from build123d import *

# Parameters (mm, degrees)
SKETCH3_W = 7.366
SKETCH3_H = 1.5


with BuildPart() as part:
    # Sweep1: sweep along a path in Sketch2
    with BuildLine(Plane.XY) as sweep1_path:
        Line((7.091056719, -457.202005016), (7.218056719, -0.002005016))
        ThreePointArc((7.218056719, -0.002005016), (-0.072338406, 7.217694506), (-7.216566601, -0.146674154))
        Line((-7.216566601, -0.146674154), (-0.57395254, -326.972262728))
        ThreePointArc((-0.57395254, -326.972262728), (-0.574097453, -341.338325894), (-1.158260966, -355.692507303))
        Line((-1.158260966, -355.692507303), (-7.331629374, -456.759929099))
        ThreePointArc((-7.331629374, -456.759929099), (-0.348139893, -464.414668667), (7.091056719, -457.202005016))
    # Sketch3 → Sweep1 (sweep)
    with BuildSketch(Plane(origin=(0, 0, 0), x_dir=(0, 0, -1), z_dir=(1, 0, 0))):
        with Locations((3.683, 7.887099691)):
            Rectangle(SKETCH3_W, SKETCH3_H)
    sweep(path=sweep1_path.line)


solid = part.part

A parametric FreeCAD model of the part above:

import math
import FreeCAD as App
import Part
import Sketcher
from FreeCAD import Vector
Q = App.Units.Quantity


def add_polygon(sketch, points):
    """Adds a closed chain of lines whose ends are joined by coincident constraints."""
    first, n = sketch.GeometryCount, len(points)
    for a, b in zip(points, points[1:] + points[:1]):
        sketch.addGeometry(Part.LineSegment(App.Vector(*a, 0), App.Vector(*b, 0)), False)
    for i in range(n):
        sketch.addConstraint(Sketcher.Constraint("Coincident", first + i, 2, first + (i + 1) % n, 1))

doc = App.newDocument("Part")
body = doc.addObject("PartDesign::Body", "Body")

# Sketch on YZ plane
sketch1 = body.newObject("Sketcher::SketchObject", "Sketch")
sketch1.AttachmentSupport = (doc.getObject("YZ_Plane"), [""])
sketch1.MapMode = "FlatFace"
add_polygon(sketch1, [(8.6, 0), (7.1, 0), (7.1, -7.4), (8.6, -7.4)])  # lines 0-3
sketch1.addConstraint(Sketcher.Constraint("Horizontal", 0))
sketch1.addConstraint(Sketcher.Constraint("Vertical", 1))
sketch1.addConstraint(Sketcher.Constraint("Horizontal", 2))
sketch1.addConstraint(Sketcher.Constraint("Vertical", 3))
sketch1.addConstraint(Sketcher.Constraint("PointOnObject", 0, 2, -1))
sketch1.addConstraint(Sketcher.Constraint("DistanceX", 0, 2, 0, 1, Q("1.5 mm")))
sketch1.addConstraint(Sketcher.Constraint("DistanceY", 1, 2, 1, 1, Q("7.366 mm")))
sketch1.addConstraint(Sketcher.Constraint("DistanceX", -1, 1, 0, 2, Q("7.1371 mm")))

# Sketch on XY plane
sketch2 = body.newObject("Sketcher::SketchObject", "Sketch001")
sketch2.AttachmentSupport = (doc.getObject("XY_Plane"), [""])
sketch2.MapMode = "FlatFace"
sketch2.addGeometry(Part.LineSegment(Vector(7, -457, 0), Vector(7, 0, 0)), False)
sketch2.addGeometry(Part.ArcOfCircle(Part.Circle(Vector(0, 0, 0), Vector(0, 0, 1), 7), math.radians(0), math.radians(181)), False)
sketch2.addGeometry(Part.LineSegment(Vector(-7, 0, 0), Vector(-1, -327, 0)), False)
sketch2.addGeometry(Part.ArcOfCircle(Part.Circle(Vector(-354, -334, 0), Vector(0, 0, 1), 353), math.radians(-3.5), math.radians(1.16)), False)
sketch2.addGeometry(Part.LineSegment(Vector(-1, -356, 0), Vector(-7, -457, 0)), False)
sketch2.addGeometry(Part.ArcOfCircle(Part.Circle(Vector(0, -457, 0), Vector(0, 0, 1), 7), math.radians(177), math.radians(360)), False)
sketch2.addConstraint(Sketcher.Constraint("Tangent", 0, 2, 1, 1))
sketch2.addConstraint(Sketcher.Constraint("Tangent", 1, 2, 2, 1))
sketch2.addConstraint(Sketcher.Constraint("Tangent", 2, 2, 3, 2))
sketch2.addConstraint(Sketcher.Constraint("Tangent", 3, 1, 4, 1))
sketch2.addConstraint(Sketcher.Constraint("Tangent", 4, 2, 5, 1))
sketch2.addConstraint(Sketcher.Constraint("Tangent", 5, 2, 0, 1))
sketch2.addConstraint(Sketcher.Constraint("Coincident", 1, 3, -1, 1))
sketch2.addConstraint(Sketcher.Constraint("Equal", 1, 5))
sketch2.addConstraint(Sketcher.Constraint("DistanceY", 5, 3, -1, 1, Q("457.2 mm")))
sketch2.addConstraint(Sketcher.Constraint("Radius", 3, Q("353.3125 mm")))
sketch2.addConstraint(Sketcher.Constraint("DistanceX", 5, 3, -1, 1, Q("0.127 mm")))
sketch2.addConstraint(Sketcher.Constraint("Radius", 1, Q("7.218057 mm")))
sketch2.addConstraint(Sketcher.Constraint("DistanceX", 3, 3, -1, 1, Q("353.8135 mm")))
sketch2.addConstraint(Sketcher.Constraint("DistanceY", 3, 3, -1, 1, Q("334.151731 mm")))
doc.recompute()

additivepipe = body.newObject("PartDesign::AdditivePipe", "AdditivePipe")
additivepipe.Profile = sketch1
additivepipe.Spine = (sketch2, ["Edge1", "Edge2", "Edge3", "Edge4", "Edge5", "Edge6"])

doc.recompute()
